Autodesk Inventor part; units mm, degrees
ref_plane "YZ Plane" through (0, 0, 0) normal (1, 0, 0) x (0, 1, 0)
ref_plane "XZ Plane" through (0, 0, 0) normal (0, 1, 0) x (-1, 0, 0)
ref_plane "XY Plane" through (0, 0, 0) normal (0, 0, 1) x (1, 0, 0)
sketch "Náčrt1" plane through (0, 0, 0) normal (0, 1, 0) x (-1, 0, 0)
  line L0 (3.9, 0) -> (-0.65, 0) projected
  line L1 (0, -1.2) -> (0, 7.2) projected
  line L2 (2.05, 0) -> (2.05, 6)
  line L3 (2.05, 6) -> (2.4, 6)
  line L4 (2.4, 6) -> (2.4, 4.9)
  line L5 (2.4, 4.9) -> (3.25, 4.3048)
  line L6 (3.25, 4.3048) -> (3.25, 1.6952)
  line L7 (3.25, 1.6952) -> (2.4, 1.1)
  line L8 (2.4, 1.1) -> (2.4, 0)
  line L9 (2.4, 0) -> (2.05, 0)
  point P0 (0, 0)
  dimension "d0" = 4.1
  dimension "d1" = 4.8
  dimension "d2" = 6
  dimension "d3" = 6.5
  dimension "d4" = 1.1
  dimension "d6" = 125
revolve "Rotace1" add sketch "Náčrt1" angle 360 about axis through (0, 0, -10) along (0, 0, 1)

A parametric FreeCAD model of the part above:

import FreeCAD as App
import Part
import Sketcher
Q = App.Units.Quantity

doc = App.newDocument("Part")
body = doc.addObject("PartDesign::Body", "Body")

# Sketch on XZ plane
sketch1 = body.newObject("Sketcher::SketchObject", "Sketch")
sketch1.AttachmentSupport = (doc.getObject("XZ_Plane"), [""])
sketch1.MapMode = "FlatFace"
sketch1.addGeometry(Part.LineSegment(App.Vector(-2.05, 0, 0), App.Vector(-2.4, 0, 0)), False)
sketch1.addGeometry(Part.LineSegment(App.Vector(-2.4, 0, 0), App.Vector(-2.4, 1.1, 0)), False)
sketch1.addGeometry(Part.LineSegment(App.Vector(-2.4, 1.1, 0), App.Vector(-3.25, 1.7, 0)), False)
sketch1.addGeometry(Part.LineSegment(App.Vector(-3.25, 1.7, 0), App.Vector(-3.25, 4.3, 0)), False)
sketch1.addGeometry(Part.LineSegment(App.Vector(-3.25, 4.3, 0), App.Vector(-2.4, 4.9, 0)), False)
sketch1.addGeometry(Part.LineSegment(App.Vector(-2.4, 4.9, 0), App.Vector(-2.4, 6, 0)), False)
sketch1.addGeometry(Part.LineSegment(App.Vector(-2.4, 6, 0), App.Vector(-2.05, 6, 0)), False)
sketch1.addGeometry(Part.LineSegment(App.Vector(-2.05, 6, 0), App.Vector(-2.05, 0, 0)), False)
sketch1.addConstraint(Sketcher.Constraint("Coincident", 0, 2, 1, 1))
sketch1.addConstraint(Sketcher.Constraint("Coincident", 1, 2, 2, 1))
sketch1.addConstraint(Sketcher.Constraint("Coincident", 2, 2, 3, 1))
sketch1.addConstraint(Sketcher.Constraint("Coincident", 3, 2, 4, 1))
sketch1.addConstraint(Sketcher.Constraint("Coincident", 4, 2, 5, 1))
sketch1.addConstraint(Sketcher.Constraint("Coincident", 5, 2, 6, 1))
sketch1.addConstraint(Sketcher.Constraint("Coincident", 6, 2, 7, 1))
sketch1.addConstraint(Sketcher.Constraint("Coincident", 7, 2, 0, 1))
sketch1.addConstraint(Sketcher.Constraint("Horizontal", 0))
sketch1.addConstraint(Sketcher.Constraint("Vertical", 1))
sketch1.addConstraint(Sketcher.Constraint("Vertical", 3))
sketch1.addConstraint(Sketcher.Constraint("Vertical", 5))
sketch1.addConstraint(Sketcher.Constraint("Horizontal", 6))
sketch1.addConstraint(Sketcher.Constraint("Vertical", 7))
sketch1.addConstraint(Sketcher.Constraint("PointOnObject", 0, 2, -1))
sketch1.addConstraint(Sketcher.Constraint("Vertical", 1, 2, 4, 2))
sketch1.addConstraint(Sketcher.Constraint("Equal", 1, 5))
sketch1.addConstraint(Sketcher.Constraint("Equal", 2, 4))
sketch1.addConstraint(Sketcher.Constraint("DistanceY", 7, 2, 7, 1, Q("6 mm")))
sketch1.addConstraint(Sketcher.Constraint("DistanceY", 1, 1, 1, 2, Q("1.1 mm")))
sketch1.addConstraint(Sketcher.Constraint("Angle", 2, Q("144.999 deg")))
sketch1.addConstraint(Sketcher.Constraint("DistanceX", 0, 2, 0, 1, Q("0.35 mm")))
sketch1.addConstraint(Sketcher.Constraint("DistanceX", 0, 2, -1, 1, Q("2.4 mm")))
sketch1.addConstraint(Sketcher.Constraint("DistanceX", 3, 2, 6, 2, Q("1.2 mm")))
revolution = body.newObject("PartDesign::Revolution", "Revolution")
revolution.Profile = sketch1
revolution.ReferenceAxis = (sketch1, ["V_Axis"])
revolution.Angle = 360

doc.recompute()
